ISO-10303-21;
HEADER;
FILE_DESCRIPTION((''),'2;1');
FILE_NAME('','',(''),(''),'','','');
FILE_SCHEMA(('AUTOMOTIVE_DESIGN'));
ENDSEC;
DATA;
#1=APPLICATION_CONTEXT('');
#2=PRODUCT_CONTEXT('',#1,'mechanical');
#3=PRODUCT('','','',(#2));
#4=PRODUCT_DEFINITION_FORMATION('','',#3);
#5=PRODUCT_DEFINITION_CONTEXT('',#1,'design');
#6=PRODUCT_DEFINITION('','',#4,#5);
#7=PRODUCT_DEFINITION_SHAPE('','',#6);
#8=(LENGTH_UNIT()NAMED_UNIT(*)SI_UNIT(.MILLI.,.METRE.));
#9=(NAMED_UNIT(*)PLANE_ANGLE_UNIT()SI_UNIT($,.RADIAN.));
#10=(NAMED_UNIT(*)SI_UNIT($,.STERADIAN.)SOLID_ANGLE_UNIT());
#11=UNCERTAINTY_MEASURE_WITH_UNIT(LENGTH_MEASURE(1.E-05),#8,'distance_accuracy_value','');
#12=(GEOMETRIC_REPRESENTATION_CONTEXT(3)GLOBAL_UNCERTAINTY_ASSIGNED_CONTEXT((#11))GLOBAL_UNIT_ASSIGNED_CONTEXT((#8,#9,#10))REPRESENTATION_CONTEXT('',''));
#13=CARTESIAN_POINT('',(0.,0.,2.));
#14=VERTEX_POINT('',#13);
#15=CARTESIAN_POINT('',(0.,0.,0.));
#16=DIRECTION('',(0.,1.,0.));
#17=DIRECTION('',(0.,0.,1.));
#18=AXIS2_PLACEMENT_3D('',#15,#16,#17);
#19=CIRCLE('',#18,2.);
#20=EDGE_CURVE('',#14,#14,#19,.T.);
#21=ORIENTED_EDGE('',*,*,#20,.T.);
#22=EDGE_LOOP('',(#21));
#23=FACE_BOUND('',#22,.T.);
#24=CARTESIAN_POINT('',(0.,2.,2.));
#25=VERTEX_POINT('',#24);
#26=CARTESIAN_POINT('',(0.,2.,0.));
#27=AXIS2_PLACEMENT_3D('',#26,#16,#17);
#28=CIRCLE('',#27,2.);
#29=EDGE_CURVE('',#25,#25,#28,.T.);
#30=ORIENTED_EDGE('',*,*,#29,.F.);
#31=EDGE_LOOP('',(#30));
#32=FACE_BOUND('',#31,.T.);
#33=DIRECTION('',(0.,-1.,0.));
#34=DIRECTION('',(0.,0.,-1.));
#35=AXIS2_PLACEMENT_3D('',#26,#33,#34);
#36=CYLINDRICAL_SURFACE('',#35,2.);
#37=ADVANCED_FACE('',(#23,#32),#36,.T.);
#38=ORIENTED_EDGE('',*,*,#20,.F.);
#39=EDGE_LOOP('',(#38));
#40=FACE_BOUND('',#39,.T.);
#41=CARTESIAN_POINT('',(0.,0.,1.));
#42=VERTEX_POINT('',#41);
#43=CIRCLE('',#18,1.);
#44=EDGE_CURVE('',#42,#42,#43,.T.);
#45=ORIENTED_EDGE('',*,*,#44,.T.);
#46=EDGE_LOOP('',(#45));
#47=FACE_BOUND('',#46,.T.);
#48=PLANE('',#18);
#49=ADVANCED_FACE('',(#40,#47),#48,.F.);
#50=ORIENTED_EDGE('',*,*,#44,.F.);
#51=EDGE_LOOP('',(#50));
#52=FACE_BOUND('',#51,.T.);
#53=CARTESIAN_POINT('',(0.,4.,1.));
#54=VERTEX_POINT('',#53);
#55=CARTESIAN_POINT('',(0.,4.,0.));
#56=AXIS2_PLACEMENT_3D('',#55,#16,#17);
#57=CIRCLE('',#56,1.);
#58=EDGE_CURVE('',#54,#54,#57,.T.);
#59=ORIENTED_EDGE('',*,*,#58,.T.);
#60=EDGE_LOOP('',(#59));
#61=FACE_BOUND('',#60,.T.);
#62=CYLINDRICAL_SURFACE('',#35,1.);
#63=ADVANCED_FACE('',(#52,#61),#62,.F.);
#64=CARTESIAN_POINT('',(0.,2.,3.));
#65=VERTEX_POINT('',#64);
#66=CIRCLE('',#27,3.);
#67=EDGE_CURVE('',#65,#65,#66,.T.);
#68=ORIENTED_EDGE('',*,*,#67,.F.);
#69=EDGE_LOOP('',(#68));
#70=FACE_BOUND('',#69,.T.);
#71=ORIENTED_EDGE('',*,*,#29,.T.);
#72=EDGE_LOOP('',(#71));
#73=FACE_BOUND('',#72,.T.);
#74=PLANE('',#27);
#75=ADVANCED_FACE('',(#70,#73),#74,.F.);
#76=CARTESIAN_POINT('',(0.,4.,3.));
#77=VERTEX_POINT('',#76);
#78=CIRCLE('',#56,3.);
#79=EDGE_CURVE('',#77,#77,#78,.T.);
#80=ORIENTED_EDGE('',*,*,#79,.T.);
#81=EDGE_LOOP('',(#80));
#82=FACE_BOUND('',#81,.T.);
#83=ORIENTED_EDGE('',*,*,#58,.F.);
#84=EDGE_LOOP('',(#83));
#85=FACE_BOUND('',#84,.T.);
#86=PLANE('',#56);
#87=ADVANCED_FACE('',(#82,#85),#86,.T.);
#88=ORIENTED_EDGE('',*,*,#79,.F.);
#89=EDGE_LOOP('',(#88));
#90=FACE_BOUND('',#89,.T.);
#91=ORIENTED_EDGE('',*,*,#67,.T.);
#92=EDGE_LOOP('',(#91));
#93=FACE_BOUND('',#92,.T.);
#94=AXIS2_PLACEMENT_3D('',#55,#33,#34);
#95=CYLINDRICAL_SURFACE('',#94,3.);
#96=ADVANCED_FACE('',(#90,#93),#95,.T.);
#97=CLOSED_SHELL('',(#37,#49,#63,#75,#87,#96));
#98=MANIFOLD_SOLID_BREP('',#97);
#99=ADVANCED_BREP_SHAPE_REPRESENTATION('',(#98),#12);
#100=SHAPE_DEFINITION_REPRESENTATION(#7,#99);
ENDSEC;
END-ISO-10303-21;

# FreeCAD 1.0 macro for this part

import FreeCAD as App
import Part
import Sketcher
from FreeCAD import Vector

doc = App.newDocument("Part")
body = doc.addObject("PartDesign::Body", "Body")

# Sketch on XZ plane
sketch1 = body.newObject("Sketcher::SketchObject", "Sketch")
sketch1.AttachmentSupport = (doc.getObject("XZ_Plane"), [""])
sketch1.MapMode = "FlatFace"
sketch1.addGeometry([
    Part.Circle(Vector(0, 0, 0), Vector(0, 0, 1), 2),
    Part.Circle(Vector(0, 0, 0), Vector(0, 0, 1), 1),
], False)
sketch1.addConstraint([
    Sketcher.Constraint("Coincident", 0, 3, -1, 1),
    Sketcher.Constraint("Coincident", 1, 3, -1, 1),
    Sketcher.Constraint("Diameter", 0, 4.0),
    Sketcher.Constraint("Diameter", 1, 2.0),
])
pad1 = body.newObject("PartDesign::Pad", "Pad")
pad1.Profile = sketch1
pad1.Length = 2
pad1.Reversed = True

# Sketch on XZ plane
sketch2 = body.newObject("Sketcher::SketchObject", "Sketch001")
sketch2.AttachmentSupport = (doc.getObject("XZ_Plane"), [""])
sketch2.MapMode = "FlatFace"
sketch2.AttachmentOffset = App.Placement(Vector(0, 0, -2), App.Rotation())
sketch2.addGeometry([
    Part.Circle(Vector(0, 0, 0), Vector(0, 0, 1), 3),
    Part.Circle(Vector(0, 0, 0), Vector(0, 0, 1), 1),
], False)
sketch2.addConstraint([
    Sketcher.Constraint("Coincident", 0, 3, -1, 1),
    Sketcher.Constraint("Coincident", 1, 3, -1, 1),
    Sketcher.Constraint("Diameter", 0, 6.0),
    Sketcher.Constraint("Diameter", 1, 2.0),
])
pad2 = body.newObject("PartDesign::Pad", "Pad001")
pad2.Profile = sketch2
pad2.Length = 2
pad2.Reversed = True

doc.recompute()
